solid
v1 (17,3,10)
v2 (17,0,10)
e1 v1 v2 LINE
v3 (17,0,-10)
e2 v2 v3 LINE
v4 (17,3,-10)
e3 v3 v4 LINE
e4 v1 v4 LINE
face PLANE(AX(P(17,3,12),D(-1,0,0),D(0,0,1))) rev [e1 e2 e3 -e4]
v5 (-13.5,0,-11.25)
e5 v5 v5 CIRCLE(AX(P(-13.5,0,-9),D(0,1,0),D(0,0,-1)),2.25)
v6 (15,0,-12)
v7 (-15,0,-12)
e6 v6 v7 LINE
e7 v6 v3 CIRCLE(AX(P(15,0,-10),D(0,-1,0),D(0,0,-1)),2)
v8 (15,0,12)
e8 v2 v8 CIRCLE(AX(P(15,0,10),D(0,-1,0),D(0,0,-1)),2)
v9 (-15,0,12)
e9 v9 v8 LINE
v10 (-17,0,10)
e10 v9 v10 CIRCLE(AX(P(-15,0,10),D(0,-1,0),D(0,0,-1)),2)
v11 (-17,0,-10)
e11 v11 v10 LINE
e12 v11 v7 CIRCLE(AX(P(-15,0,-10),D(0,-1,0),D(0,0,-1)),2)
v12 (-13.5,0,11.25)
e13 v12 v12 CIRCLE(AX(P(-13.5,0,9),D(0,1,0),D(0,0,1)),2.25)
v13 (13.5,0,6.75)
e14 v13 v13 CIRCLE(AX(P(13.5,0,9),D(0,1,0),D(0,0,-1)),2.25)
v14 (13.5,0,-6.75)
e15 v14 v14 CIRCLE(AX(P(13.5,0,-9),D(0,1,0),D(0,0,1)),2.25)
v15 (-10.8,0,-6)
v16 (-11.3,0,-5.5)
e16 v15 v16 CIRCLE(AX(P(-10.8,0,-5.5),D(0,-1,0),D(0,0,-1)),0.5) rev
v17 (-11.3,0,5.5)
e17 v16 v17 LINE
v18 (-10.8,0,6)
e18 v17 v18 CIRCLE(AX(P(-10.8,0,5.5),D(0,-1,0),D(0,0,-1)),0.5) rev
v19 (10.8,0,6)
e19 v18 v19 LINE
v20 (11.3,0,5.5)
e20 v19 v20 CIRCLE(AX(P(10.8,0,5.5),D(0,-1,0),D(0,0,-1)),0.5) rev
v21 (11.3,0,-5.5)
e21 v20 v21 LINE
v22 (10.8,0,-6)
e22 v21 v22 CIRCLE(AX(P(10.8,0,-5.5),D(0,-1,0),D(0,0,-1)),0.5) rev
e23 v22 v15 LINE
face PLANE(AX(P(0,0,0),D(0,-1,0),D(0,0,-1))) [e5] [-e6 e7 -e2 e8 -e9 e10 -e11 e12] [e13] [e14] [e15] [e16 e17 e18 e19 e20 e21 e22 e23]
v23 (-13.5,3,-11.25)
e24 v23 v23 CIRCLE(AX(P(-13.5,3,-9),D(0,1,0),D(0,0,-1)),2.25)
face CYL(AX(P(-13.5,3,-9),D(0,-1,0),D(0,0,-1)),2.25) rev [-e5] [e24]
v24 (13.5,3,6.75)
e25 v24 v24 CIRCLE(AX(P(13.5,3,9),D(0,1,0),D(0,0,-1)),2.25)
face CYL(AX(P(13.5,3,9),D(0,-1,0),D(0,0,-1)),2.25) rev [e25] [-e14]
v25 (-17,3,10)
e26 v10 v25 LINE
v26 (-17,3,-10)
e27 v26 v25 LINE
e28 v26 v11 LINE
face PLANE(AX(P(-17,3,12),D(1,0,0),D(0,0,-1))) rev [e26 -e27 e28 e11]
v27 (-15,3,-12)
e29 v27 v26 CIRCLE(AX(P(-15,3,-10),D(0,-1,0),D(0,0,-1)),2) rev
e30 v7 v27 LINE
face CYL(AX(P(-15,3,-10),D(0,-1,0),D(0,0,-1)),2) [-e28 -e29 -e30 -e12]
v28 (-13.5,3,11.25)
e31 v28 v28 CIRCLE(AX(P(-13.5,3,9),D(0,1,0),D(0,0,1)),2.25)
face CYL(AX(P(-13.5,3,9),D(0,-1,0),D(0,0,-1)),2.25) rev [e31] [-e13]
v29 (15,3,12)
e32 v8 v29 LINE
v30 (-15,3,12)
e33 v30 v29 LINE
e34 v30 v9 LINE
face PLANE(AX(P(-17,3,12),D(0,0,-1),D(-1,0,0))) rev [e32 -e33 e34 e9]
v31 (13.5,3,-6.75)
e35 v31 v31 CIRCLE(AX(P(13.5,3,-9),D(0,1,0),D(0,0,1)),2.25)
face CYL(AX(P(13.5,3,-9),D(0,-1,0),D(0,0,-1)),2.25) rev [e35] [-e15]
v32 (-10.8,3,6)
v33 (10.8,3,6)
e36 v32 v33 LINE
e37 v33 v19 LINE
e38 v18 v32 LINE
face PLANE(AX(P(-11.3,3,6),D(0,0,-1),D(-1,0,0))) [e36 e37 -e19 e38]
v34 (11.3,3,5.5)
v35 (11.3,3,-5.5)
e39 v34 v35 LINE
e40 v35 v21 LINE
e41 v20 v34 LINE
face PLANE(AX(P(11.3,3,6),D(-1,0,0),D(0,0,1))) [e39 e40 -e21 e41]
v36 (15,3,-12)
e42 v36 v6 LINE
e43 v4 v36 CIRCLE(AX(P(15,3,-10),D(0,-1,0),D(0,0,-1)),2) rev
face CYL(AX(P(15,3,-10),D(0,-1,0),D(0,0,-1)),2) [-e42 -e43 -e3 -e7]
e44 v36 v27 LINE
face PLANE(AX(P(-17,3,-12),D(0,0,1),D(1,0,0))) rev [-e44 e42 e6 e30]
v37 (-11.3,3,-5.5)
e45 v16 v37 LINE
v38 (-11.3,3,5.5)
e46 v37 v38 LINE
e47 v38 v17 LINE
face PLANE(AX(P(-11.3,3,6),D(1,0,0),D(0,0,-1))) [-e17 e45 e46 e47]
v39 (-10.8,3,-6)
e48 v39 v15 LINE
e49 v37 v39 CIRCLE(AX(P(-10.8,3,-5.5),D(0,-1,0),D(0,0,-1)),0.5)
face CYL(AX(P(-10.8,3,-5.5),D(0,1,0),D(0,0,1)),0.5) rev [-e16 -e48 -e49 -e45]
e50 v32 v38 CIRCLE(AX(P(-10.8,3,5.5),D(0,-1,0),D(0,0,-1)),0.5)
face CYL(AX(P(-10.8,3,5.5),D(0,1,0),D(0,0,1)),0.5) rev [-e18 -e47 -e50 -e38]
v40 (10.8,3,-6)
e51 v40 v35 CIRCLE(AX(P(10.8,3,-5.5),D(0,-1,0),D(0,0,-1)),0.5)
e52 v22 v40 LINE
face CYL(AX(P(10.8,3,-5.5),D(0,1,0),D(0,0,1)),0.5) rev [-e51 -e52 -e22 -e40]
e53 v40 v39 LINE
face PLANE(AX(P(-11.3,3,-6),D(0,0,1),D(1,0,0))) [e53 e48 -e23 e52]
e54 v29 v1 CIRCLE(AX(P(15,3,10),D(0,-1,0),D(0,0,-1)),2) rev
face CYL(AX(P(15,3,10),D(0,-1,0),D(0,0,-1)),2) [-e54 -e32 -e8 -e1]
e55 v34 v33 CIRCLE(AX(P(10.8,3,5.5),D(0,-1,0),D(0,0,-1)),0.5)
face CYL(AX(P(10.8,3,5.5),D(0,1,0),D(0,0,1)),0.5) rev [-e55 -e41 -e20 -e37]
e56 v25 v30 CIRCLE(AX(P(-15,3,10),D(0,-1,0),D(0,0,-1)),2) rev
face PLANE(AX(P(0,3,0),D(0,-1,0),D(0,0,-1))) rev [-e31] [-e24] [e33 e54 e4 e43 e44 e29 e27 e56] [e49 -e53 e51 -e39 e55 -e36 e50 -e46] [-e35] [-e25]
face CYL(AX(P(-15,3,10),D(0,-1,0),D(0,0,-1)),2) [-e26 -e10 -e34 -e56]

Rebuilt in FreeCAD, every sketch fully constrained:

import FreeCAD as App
import Part
import Sketcher

V = App.Vector


def edges_at(feature, points):
    """Names of the edges that pass closest to the given points."""
    edges = feature.Shape.Edges
    near = lambda p: min(range(len(edges)), key=lambda i: edges[i].distToShape(Part.Vertex(*p))[0])
    return sorted({f"Edge{near(p) + 1}" for p in points})


def add_polygon(sketch, points):
    """Adds a closed chain of lines whose ends are joined by coincident constraints."""
    first, n = sketch.GeometryCount, len(points)
    for a, b in zip(points, points[1:] + points[:1]):
        sketch.addGeometry(Part.LineSegment(App.Vector(*a, 0), App.Vector(*b, 0)), False)
    for i in range(n):
        sketch.addConstraint(Sketcher.Constraint("Coincident", first + i, 2, first + (i + 1) % n, 1))

doc = App.newDocument("Part")
body = doc.addObject("PartDesign::Body", "Body")

# Sketch on XZ plane
sketch1 = doc.addObject("Sketcher::SketchObject", "Sketch")
body.addObject(sketch1)
sketch1.AttachmentSupport = (doc.XZ_Plane, [""])
sketch1.MapMode = "FlatFace"
add_polygon(sketch1, [(-17, -12), (-17, 12), (17, 12), (17, -12)])  # lines 0-3
sketch1.addGeometry(Part.Circle(V(-13.5, 9, 0), V(0, 0, 1), 2.25), False)  # 4
sketch1.addGeometry(Part.Circle(V(13.5, 9, 0), V(0, 0, 1), 2.25), False)  # 5
sketch1.addGeometry(Part.Circle(V(-13.5, -9, 0), V(0, 0, 1), 2.25), False)  # 6
add_polygon(sketch1, [(11.3, 6), (-11.3, 6), (-11.3, -6), (11.3, -6)])  # lines 7-10
sketch1.addGeometry(Part.Circle(V(13.5, -9, 0), V(0, 0, 1), 2.25), False)  # 11
sketch1.addConstraint([
    Sketcher.Constraint("Vertical", 0),
    Sketcher.Constraint("Horizontal", 1),
    Sketcher.Constraint("Vertical", 2),
    Sketcher.Constraint("Horizontal", 3),
    Sketcher.Constraint("Horizontal", 7),
    Sketcher.Constraint("Vertical", 8),
    Sketcher.Constraint("Horizontal", 9),
    Sketcher.Constraint("Vertical", 10),
    Sketcher.Constraint("Equal", 4, 5),
    Sketcher.Constraint("Equal", 5, 6),
    Sketcher.Constraint("Equal", 6, 11),
    Sketcher.Constraint("Symmetric", 5, 3, 6, 3, -1, 1),
    Sketcher.Constraint("Symmetric", 4, 3, 11, 3, -1, 1),
    Sketcher.Constraint("Symmetric", 0, 2, 2, 2, -1, 1),
    Sketcher.Constraint("Symmetric", 7, 2, 9, 2, -1, 1),
    Sketcher.Constraint("Symmetric", 4, 3, 5, 3, -2),
    Sketcher.Constraint("Diameter", 4, 4.5),
    Sketcher.Constraint("DistanceX", 1, 1, 1, 2, 34.0),
    Sketcher.Constraint("DistanceY", 0, 1, 0, 2, 24.0),
    Sketcher.Constraint("DistanceY", 8, 2, 8, 1, 12.0),
    Sketcher.Constraint("DistanceX", 7, 2, 7, 1, 22.6),
    Sketcher.Constraint("DistanceY", -1, 1, 4, 3, 9.0),
    Sketcher.Constraint("DistanceX", 4, 3, 5, 3, 27.0),
])
pad1 = doc.addObject("PartDesign::Pad", "Pad")
body.addObject(pad1)
pad1.Profile = sketch1
pad1.Length = 3
pad1.Reversed = True
doc.recompute()

fillet = doc.addObject("PartDesign::Fillet", "Fillet")
body.addObject(fillet)
fillet.Base = (pad1, edges_at(pad1, [
    (11.3, 1.5, 6),
    (11.3, 1.5, -6),
    (-11.3, 1.5, -6),
    (-11.3, 1.5, 6),
]))
fillet.Radius = 0.5
doc.recompute()

fillet2 = doc.addObject("PartDesign::Fillet", "Fillet001")
body.addObject(fillet2)
fillet2.Base = (fillet, edges_at(fillet, [
    (17, 1.5, 12),
    (-17, 1.5, 12),
    (-17, 1.5, -12),
    (17, 1.5, -12),
]))
fillet2.Radius = 2

doc.recompute()
